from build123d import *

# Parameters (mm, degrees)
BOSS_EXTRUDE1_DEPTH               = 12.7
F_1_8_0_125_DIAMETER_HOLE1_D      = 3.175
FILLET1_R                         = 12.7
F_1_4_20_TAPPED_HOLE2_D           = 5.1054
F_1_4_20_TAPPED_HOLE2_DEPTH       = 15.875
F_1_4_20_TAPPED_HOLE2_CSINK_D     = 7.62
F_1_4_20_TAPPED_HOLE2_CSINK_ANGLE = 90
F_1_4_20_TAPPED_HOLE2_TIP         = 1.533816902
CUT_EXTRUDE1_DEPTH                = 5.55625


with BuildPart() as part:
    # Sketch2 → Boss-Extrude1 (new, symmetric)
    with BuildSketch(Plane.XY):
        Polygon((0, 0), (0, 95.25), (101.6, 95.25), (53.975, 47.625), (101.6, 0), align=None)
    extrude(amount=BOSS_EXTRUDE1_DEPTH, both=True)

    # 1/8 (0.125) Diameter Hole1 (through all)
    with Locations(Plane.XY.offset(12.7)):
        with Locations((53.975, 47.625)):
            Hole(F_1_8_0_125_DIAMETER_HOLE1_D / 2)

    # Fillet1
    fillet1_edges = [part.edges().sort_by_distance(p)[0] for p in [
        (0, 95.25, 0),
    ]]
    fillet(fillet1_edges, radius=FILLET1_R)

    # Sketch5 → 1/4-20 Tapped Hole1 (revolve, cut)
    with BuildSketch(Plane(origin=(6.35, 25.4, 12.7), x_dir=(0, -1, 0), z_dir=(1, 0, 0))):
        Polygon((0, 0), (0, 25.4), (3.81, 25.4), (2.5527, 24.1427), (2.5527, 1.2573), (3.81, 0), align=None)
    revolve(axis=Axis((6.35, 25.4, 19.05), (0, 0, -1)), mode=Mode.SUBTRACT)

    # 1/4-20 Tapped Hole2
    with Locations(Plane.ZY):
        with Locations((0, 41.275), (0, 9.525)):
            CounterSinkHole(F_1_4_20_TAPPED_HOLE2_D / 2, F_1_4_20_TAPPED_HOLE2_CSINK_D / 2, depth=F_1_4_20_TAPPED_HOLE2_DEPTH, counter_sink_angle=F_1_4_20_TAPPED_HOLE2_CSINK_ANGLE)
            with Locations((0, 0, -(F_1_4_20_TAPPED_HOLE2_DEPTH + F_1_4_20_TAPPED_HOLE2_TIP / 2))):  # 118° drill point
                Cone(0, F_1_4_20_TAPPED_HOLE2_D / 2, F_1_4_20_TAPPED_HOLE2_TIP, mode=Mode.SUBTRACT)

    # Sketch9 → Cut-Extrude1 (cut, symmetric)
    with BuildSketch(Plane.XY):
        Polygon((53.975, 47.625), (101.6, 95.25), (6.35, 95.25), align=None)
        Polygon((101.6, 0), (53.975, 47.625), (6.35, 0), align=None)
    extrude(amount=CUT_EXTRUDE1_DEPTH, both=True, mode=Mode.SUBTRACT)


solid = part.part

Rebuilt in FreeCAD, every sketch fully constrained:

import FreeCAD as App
import Part
import Sketcher
from FreeCAD import Vector
Q = App.Units.Quantity


def edges_at(feature, points):
    """Names of the edges that pass closest to the given points."""
    edges = feature.Shape.Edges
    near = lambda p: min(range(len(edges)), key=lambda i: edges[i].distToShape(Part.Vertex(*p))[0])
    return sorted({f"Edge{near(p) + 1}" for p in points})


def add_polygon(sketch, points):
    """Adds a closed chain of lines whose ends are joined by coincident constraints."""
    first, n = sketch.GeometryCount, len(points)
    for a, b in zip(points, points[1:] + points[:1]):
        sketch.addGeometry(Part.LineSegment(App.Vector(*a, 0), App.Vector(*b, 0)), False)
    for i in range(n):
        sketch.addConstraint(Sketcher.Constraint("Coincident", first + i, 2, first + (i + 1) % n, 1))

doc = App.newDocument("Part")
body = doc.addObject("PartDesign::Body", "Body")

# Sketch on XY plane
sketch1 = body.newObject("Sketcher::SketchObject", "Sketch")
sketch1.AttachmentSupport = (doc.getObject("XY_Plane"), [""])
sketch1.MapMode = "FlatFace"
add_polygon(sketch1, [(0, 95.25), (0, 0), (101.6, 0), (53.975, 47.625), (101.6, 95.25)])  # lines 0-4
sketch1.addConstraint(Sketcher.Constraint("Vertical", 0))
sketch1.addConstraint(Sketcher.Constraint("Horizontal", 1))
sketch1.addConstraint(Sketcher.Constraint("Horizontal", 4))
sketch1.addConstraint(Sketcher.Constraint("Coincident", 0, 2, -1, 1))
sketch1.addConstraint(Sketcher.Constraint("Perpendicular", 2, 3))
sketch1.addConstraint(Sketcher.Constraint("Vertical", 1, 2, 3, 2))
sketch1.addConstraint(Sketcher.Constraint("Equal", 2, 3))
sketch1.addConstraint(Sketcher.Constraint("DistanceX", 1, 1, 1, 2, Q("4 in")))
sketch1.addConstraint(Sketcher.Constraint("DistanceY", 0, 2, 0, 1, Q("3.75 in")))
pad1 = body.newObject("PartDesign::Pad", "Pad")
pad1.Profile = sketch1
pad1.Length = Q("1 in")
pad1.Midplane = True

# Sketch on XY plane
sketch2 = body.newObject("Sketcher::SketchObject", "Sketch001")
sketch2.AttachmentSupport = (doc.getObject("XY_Plane"), [""])
sketch2.MapMode = "FlatFace"
sketch2.AttachmentOffset = App.Placement(Vector(0, 0, 0.5 * 25.4), App.Rotation())
sketch2.addGeometry(Part.Circle(Vector(53.975, 47.625, 0), Vector(0, 0, 1), 1.5875), False)
sketch2.addConstraint(Sketcher.Constraint("Diameter", 0, Q("0.125 in")))
sketch2.addConstraint(Sketcher.Constraint("DistanceX", -1, 1, 0, 3, Q("2.125 in")))
sketch2.addConstraint(Sketcher.Constraint("DistanceY", -1, 1, 0, 3, Q("1.875 in")))
doc.recompute()
hole = body.newObject("PartDesign::Hole", "Hole")
hole.Profile = sketch2
hole.ThreadType = "None"
hole.Diameter = Q("0.125 in")
hole.DepthType = "ThroughAll"
doc.recompute()

fillet = body.newObject("PartDesign::Fillet", "Fillet")
fillet.Base = (hole, edges_at(hole, [(0, 95.25, 0)]))
fillet.Radius = Q("0.5 in")

# Sketch on YZ plane
sketch3 = body.newObject("Sketcher::SketchObject", "Sketch002")
sketch3.AttachmentSupport = (doc.getObject("YZ_Plane"), [""])
sketch3.MapMode = "FlatFace"
sketch3.AttachmentOffset = App.Placement(Vector(0, 0, 0.25 * 25.4), App.Rotation())
add_polygon(sketch3, [(25.4, -12.7), (25.4, 12.7), (21.59, 12.7), (22.8473, 11.4427), (22.8473, -11.4427), (21.59, -12.7)])  # lines 0-5
sketch3.addGeometry(Part.LineSegment(Vector(25.4, 12.7, 0), Vector(25.4, -12.7, 0)), True)  # axis
sketch3.addConstraint(Sketcher.Constraint("Vertical", 0))
sketch3.addConstraint(Sketcher.Constraint("Horizontal", 1))
sketch3.addConstraint(Sketcher.Constraint("Vertical", 3))
sketch3.addConstraint(Sketcher.Constraint("Horizontal", 5))
sketch3.addConstraint(Sketcher.Constraint("Vertical", 6))
sketch3.addConstraint(Sketcher.Constraint("Coincident", 6, 1, 0, 2))
sketch3.addConstraint(Sketcher.Constraint("Symmetric", 1, 2, 4, 2, -1))
sketch3.addConstraint(Sketcher.Constraint("Perpendicular", 2, 4))
sketch3.addConstraint(Sketcher.Constraint("Horizontal", 4, 2, 6, 2))
sketch3.addConstraint(Sketcher.Constraint("Equal", 2, 4))
sketch3.addConstraint(Sketcher.Constraint("DistanceY", 0, 1, 0, 2, Q("1 in")))
sketch3.addConstraint(Sketcher.Constraint("DistanceX", -1, 1, 0, 2, Q("1 in")))
sketch3.addConstraint(Sketcher.Constraint("DistanceX", 1, 2, 1, 1, Q("0.15 in")))
sketch3.addConstraint(Sketcher.Constraint("DistanceY", 3, 2, 3, 1, Q("0.901 in")))
groove = body.newObject("PartDesign::Groove", "Groove")
groove.Profile = sketch3
groove.ReferenceAxis = (sketch3, ["Axis0"])
groove.Angle = 360

# Sketch on YZ plane
sketch4 = body.newObject("Sketcher::SketchObject", "Sketch003")
sketch4.AttachmentSupport = (doc.getObject("YZ_Plane"), [""])
sketch4.MapMode = "FlatFace"
sketch4.addGeometry(Part.Circle(Vector(41.275, 0, 0), Vector(0, 0, 1), 2.5527), False)
sketch4.addGeometry(Part.Circle(Vector(9.525, 0, 0), Vector(0, 0, 1), 2.5527), False)
sketch4.addConstraint(Sketcher.Constraint("Equal", 0, 1))
sketch4.addConstraint(Sketcher.Constraint("PointOnObject", 0, 3, -1))
sketch4.addConstraint(Sketcher.Constraint("PointOnObject", 1, 3, -1))
sketch4.addConstraint(Sketcher.Constraint("Diameter", 0, Q("0.201 in")))
sketch4.addConstraint(Sketcher.Constraint("DistanceX", 1, 3, 0, 3, Q("1.25 in")))
sketch4.addConstraint(Sketcher.Constraint("DistanceX", -1, 1, 0, 3, Q("1.625 in")))
doc.recompute()
hole2 = body.newObject("PartDesign::Hole", "Hole001")
hole2.Profile = sketch4
hole2.ThreadType = "None"
hole2.Diameter = Q("0.201 in")
hole2.DepthType = "Dimension"
hole2.Depth = Q("0.625 in")
hole2.DrillPoint = "Angled"
hole2.DrillPointAngle = 118
hole2.HoleCutType = "Countersink"
hole2.HoleCutDiameter = Q("0.3 in")
hole2.HoleCutCountersinkAngle = 90
hole2.Reversed = True

# Sketch on XY plane
sketch5 = body.newObject("Sketcher::SketchObject", "Sketch004")
sketch5.AttachmentSupport = (doc.getObject("XY_Plane"), [""])
sketch5.MapMode = "FlatFace"
add_polygon(sketch5, [(53.975, 47.625), (101.6, 95.25), (6.35, 95.25)])  # lines 0-2
add_polygon(sketch5, [(101.6, 0), (53.975, 47.625), (6.35, 0)])  # lines 3-5
sketch5.addConstraint(Sketcher.Constraint("Horizontal", 1))
sketch5.addConstraint(Sketcher.Constraint("Horizontal", 5))
sketch5.addConstraint(Sketcher.Constraint("Coincident", 3, 2, 2, 2))
sketch5.addConstraint(Sketcher.Constraint("PointOnObject", 4, 2, -1))
sketch5.addConstraint(Sketcher.Constraint("Perpendicular", 0, 2))
sketch5.addConstraint(Sketcher.Constraint("Parallel", 2, 3))
sketch5.addConstraint(Sketcher.Constraint("Perpendicular", 3, 4))
sketch5.addConstraint(Sketcher.Constraint("Vertical", 1, 2, 4, 2))
sketch5.addConstraint(Sketcher.Constraint("Vertical", 0, 2, 5, 2))
sketch5.addConstraint(Sketcher.Constraint("DistanceX", -1, 1, 0, 2, Q("4 in")))
sketch5.addConstraint(Sketcher.Constraint("DistanceX", 1, 2, 1, 1, Q("3.75 in")))
pocket1 = body.newObject("PartDesign::Pocket", "Pocket")
pocket1.Profile = sketch5
pocket1.Length = Q("0.4375 in")
pocket1.Midplane = True

doc.recompute()
